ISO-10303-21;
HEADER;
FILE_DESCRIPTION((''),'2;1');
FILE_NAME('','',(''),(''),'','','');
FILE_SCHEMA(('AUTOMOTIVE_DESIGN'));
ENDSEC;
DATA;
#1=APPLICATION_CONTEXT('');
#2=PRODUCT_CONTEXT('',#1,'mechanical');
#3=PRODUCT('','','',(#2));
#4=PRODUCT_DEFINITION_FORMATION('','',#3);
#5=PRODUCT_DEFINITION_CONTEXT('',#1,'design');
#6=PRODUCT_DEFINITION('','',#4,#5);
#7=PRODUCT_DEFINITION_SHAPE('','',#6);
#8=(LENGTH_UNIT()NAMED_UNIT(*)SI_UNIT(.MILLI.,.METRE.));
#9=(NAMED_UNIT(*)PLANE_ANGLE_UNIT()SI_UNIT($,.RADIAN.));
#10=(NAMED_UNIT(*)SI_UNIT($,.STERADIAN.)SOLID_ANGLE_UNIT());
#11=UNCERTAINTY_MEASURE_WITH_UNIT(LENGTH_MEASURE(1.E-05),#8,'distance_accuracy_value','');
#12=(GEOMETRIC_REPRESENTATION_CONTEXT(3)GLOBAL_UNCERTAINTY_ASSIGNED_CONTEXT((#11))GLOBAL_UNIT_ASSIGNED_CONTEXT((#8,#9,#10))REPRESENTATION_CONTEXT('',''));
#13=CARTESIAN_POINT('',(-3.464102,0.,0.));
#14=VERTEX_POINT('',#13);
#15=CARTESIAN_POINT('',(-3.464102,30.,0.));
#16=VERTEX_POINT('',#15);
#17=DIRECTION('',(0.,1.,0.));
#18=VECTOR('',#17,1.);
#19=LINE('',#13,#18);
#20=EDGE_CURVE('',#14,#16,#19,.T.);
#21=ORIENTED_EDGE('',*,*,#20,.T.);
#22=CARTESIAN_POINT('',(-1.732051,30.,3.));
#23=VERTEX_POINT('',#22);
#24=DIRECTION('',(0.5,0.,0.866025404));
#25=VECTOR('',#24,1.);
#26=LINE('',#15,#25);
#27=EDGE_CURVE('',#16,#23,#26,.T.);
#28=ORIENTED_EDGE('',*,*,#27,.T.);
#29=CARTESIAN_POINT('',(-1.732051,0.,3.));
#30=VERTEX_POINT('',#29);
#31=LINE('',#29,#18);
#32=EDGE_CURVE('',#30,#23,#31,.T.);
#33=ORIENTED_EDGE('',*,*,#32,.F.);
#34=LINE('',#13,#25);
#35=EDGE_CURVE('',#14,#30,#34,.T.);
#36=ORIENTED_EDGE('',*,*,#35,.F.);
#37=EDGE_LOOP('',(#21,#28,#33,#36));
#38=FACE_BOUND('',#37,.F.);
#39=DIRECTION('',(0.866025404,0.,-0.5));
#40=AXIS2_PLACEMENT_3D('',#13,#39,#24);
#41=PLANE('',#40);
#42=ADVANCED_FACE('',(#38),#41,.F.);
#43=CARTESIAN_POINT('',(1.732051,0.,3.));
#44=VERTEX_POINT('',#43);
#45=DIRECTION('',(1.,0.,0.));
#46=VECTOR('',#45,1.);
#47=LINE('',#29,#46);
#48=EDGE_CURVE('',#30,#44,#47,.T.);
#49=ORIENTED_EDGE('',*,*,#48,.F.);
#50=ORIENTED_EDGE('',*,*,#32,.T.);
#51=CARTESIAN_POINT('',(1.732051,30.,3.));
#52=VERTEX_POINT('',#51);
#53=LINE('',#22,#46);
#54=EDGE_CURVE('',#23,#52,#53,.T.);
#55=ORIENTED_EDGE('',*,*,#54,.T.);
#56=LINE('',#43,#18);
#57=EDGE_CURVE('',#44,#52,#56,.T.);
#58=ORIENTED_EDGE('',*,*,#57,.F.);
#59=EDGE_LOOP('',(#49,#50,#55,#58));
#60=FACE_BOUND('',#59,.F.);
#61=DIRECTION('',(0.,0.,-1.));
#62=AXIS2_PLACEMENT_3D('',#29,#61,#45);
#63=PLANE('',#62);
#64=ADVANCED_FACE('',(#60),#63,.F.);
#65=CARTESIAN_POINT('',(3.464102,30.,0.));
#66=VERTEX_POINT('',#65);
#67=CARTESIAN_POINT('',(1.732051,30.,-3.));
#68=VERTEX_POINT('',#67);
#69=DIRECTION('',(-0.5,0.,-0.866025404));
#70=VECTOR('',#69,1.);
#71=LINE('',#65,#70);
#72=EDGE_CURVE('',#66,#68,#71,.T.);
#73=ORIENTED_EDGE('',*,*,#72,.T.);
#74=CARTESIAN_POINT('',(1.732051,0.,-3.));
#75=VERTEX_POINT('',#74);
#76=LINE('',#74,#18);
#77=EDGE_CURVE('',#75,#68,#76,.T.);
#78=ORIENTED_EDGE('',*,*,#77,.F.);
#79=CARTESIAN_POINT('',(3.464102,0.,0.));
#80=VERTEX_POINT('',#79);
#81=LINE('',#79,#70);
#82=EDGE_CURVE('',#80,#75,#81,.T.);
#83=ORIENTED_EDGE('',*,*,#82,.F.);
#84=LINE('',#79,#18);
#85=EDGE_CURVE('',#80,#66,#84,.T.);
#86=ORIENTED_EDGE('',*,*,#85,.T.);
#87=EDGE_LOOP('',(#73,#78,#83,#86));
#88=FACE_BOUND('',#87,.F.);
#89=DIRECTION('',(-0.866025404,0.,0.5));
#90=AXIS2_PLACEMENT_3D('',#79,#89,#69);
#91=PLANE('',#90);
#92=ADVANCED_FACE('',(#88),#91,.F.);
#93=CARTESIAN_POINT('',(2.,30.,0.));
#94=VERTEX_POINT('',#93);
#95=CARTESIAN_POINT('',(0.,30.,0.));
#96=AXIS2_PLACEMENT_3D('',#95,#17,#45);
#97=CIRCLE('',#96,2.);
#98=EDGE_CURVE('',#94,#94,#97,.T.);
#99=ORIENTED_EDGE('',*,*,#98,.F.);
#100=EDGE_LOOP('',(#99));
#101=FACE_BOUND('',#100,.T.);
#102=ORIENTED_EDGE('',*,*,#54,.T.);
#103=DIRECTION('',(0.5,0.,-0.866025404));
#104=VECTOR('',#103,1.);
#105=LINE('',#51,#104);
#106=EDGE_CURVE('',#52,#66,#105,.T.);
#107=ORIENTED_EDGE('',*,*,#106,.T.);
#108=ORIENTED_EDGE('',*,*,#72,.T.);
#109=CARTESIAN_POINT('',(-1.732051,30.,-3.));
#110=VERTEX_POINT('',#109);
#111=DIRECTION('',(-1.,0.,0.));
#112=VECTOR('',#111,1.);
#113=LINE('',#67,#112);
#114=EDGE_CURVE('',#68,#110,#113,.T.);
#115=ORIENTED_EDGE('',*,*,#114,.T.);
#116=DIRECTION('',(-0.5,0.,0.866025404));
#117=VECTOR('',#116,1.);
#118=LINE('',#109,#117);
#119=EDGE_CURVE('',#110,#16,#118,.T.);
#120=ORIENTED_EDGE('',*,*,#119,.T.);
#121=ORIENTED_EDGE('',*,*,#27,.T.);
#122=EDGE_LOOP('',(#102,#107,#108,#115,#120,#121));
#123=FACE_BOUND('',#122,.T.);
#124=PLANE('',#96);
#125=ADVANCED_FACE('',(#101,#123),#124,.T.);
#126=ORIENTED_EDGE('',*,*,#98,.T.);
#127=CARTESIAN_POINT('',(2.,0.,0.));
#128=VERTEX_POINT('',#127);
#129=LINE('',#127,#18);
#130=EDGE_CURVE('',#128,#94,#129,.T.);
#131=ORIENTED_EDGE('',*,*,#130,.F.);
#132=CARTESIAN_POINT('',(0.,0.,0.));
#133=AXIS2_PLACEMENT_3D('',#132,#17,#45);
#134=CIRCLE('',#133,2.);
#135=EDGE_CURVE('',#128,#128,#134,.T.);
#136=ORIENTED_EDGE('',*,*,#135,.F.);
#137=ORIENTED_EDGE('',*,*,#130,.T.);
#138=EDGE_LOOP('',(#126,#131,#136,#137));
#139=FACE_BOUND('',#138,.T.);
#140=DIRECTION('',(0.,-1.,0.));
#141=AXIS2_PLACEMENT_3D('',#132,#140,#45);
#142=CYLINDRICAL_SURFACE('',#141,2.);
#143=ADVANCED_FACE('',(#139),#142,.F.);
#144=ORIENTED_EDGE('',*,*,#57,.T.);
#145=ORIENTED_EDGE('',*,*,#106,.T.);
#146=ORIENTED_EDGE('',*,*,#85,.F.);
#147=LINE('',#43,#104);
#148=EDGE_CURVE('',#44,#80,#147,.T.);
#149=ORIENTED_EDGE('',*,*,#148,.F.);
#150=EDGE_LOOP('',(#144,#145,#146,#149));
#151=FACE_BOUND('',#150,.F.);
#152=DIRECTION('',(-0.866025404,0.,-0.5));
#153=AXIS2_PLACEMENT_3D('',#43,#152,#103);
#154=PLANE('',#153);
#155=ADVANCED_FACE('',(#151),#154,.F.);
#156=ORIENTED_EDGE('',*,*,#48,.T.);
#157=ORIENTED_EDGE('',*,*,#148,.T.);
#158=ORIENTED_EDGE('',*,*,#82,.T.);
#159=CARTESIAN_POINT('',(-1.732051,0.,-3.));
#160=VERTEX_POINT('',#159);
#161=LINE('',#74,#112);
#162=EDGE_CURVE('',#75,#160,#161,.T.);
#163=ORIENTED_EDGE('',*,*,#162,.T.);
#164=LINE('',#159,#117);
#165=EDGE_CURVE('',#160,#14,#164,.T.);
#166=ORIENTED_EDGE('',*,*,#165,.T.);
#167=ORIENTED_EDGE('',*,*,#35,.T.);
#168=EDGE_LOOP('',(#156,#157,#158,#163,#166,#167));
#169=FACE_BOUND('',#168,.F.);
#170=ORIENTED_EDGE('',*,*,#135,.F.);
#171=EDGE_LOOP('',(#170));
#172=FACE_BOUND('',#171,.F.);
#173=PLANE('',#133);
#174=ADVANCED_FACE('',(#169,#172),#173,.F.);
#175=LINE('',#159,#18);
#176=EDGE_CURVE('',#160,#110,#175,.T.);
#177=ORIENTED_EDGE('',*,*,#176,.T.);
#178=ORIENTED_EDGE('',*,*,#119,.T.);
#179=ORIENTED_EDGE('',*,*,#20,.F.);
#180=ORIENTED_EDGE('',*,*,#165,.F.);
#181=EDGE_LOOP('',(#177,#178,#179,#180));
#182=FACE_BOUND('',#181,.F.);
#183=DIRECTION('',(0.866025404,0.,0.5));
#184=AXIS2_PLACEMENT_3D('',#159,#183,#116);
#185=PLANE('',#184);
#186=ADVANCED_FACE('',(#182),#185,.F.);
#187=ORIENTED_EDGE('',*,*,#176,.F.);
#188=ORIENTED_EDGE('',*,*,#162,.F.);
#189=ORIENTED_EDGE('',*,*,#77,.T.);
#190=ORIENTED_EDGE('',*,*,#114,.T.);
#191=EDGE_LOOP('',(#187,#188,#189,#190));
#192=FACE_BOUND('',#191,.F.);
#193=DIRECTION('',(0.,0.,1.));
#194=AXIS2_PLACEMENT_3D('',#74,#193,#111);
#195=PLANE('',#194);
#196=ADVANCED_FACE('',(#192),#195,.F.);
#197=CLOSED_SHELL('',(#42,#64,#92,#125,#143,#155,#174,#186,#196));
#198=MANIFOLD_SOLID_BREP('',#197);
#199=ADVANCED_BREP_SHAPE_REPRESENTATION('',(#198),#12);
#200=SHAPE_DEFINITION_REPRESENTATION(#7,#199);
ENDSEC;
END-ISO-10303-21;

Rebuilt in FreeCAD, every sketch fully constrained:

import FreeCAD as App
import Part
import Sketcher

V = App.Vector
Q = App.Units.Quantity

doc = App.newDocument("Part")
body = doc.addObject("PartDesign::Body", "Body")

sketch1 = doc.addObject("Sketcher::SketchObject", "Sketch")
body.addObject(sketch1)
sketch1.AttachmentSupport = (doc.XZ_Plane, [""])
sketch1.MapMode = "FlatFace"
sketch1.addGeometry(Part.LineSegment(V(1.7, -3, 0), V(-1.7, -3, 0)), False)
sketch1.addGeometry(Part.LineSegment(V(-1.7, -3, 0), V(-3.5, 0, 0)), False)
sketch1.addGeometry(Part.LineSegment(V(-3.5, 0, 0), V(-1.7, 3, 0)), False)
sketch1.addGeometry(Part.LineSegment(V(-1.7, 3, 0), V(1.7, 3, 0)), False)
sketch1.addGeometry(Part.LineSegment(V(1.7, 3, 0), V(3.5, 0, 0)), False)
sketch1.addGeometry(Part.LineSegment(V(3.5, 0, 0), V(1.7, -3, 0)), False)
sketch1.addGeometry(Part.Circle(V(0, 0, 0), V(0, 0, 1), 2), False)
sketch1.addConstraint(Sketcher.Constraint("Coincident", 0, 2, 1, 1))
sketch1.addConstraint(Sketcher.Constraint("Coincident", 1, 2, 2, 1))
sketch1.addConstraint(Sketcher.Constraint("Coincident", 2, 2, 3, 1))
sketch1.addConstraint(Sketcher.Constraint("Coincident", 3, 2, 4, 1))
sketch1.addConstraint(Sketcher.Constraint("Coincident", 4, 2, 5, 1))
sketch1.addConstraint(Sketcher.Constraint("Coincident", 5, 2, 0, 1))
sketch1.addConstraint(Sketcher.Constraint("Horizontal", 0))
sketch1.addConstraint(Sketcher.Constraint("Horizontal", 3))
sketch1.addConstraint(Sketcher.Constraint("Coincident", 6, 3, -1, 1))
sketch1.addConstraint(Sketcher.Constraint("Symmetric", 0, 2, 3, 2, -1, 1))
sketch1.addConstraint(Sketcher.Constraint("Symmetric", 1, 2, 4, 2, -1, 1))
sketch1.addConstraint(Sketcher.Constraint("PointOnObject", 1, 2, -1))
sketch1.addConstraint(Sketcher.Constraint("Parallel", 2, 5))
sketch1.addConstraint(Sketcher.Constraint("Vertical", 0, 2, 2, 2))
sketch1.addConstraint(Sketcher.Constraint("Diameter", 6, Q("4 mm")))
sketch1.addConstraint(Sketcher.Constraint("Angle", 1, Q("120 deg")))
sketch1.addConstraint(Sketcher.Constraint("DistanceY", 0, 2, -1, 1, Q("3 mm")))
sketch1.addConstraint(Sketcher.Constraint("DistanceX", 0, 2, 0, 1, Q("3.464102 mm")))
pad1 = doc.addObject("PartDesign::Pad", "Pad")
body.addObject(pad1)
pad1.Profile = sketch1
pad1.Length = 30
pad1.Reversed = True

doc.recompute()
